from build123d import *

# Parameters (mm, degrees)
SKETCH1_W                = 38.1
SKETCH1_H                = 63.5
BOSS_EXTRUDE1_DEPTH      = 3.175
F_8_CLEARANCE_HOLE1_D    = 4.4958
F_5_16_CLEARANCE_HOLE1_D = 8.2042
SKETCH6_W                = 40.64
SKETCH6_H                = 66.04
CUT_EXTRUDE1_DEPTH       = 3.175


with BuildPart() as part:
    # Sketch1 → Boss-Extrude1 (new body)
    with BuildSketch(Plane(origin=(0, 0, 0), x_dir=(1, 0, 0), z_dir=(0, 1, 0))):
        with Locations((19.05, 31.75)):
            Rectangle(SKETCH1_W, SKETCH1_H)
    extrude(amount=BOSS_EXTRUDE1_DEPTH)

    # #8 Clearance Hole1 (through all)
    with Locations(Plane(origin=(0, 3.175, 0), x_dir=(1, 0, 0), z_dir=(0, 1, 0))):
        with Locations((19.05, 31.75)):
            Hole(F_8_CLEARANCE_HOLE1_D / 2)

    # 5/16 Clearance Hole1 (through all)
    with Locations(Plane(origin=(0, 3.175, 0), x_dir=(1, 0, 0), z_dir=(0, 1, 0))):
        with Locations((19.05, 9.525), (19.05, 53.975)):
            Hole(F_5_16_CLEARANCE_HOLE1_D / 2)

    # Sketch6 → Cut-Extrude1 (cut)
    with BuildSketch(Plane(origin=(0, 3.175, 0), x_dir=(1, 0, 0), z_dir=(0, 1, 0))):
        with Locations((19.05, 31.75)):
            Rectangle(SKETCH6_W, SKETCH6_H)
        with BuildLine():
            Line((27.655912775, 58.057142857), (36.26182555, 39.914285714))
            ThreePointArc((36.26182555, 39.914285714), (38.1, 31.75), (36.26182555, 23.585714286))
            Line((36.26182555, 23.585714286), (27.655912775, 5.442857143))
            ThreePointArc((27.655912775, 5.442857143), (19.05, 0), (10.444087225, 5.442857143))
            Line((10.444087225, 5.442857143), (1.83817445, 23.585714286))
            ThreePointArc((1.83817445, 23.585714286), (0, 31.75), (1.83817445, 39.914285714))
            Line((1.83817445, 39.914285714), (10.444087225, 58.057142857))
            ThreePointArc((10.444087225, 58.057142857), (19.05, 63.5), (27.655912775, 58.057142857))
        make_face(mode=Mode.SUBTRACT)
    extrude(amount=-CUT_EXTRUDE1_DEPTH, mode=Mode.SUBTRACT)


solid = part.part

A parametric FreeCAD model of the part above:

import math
import FreeCAD as App
import Part
import Sketcher
from FreeCAD import Vector
Q = App.Units.Quantity


def add_polygon(sketch, points):
    """Adds a closed chain of lines whose ends are joined by coincident constraints."""
    first, n = sketch.GeometryCount, len(points)
    for a, b in zip(points, points[1:] + points[:1]):
        sketch.addGeometry(Part.LineSegment(App.Vector(*a, 0), App.Vector(*b, 0)), False)
    for i in range(n):
        sketch.addConstraint(Sketcher.Constraint("Coincident", first + i, 2, first + (i + 1) % n, 1))

doc = App.newDocument("Part")
params = doc.addObject("Spreadsheet::Sheet", "Params")
for row, (alias, value) in enumerate([
    ("sketch1_width", "1.5 in"),
    ("sketch1_height", "2.5 in"),
    ("pad1_length", "0.125 in"),
    ("sketch2_diameter", "0.177 in"),
    ("hole_diameter", "0.177 in"),
    ("sketch3_diameter", "0.323 in"),
    ("hole2_diameter", "0.323 in"),
    ("sketch4_radius", "0.75 in"),
    ("sketch4_width", "1.6 in"),
    ("sketch4_height", "2.6 in"),
    ("sketch4_radius2", "0.375 in"),
    ("pocket1_length", "0.125 in"),
], start=1):
    params.set(f"A{row}", alias)
    params.set(f"B{row}", "=" + value)
    params.setAlias(f"B{row}", alias)

body = doc.addObject("PartDesign::Body", "Body")

# Sketch on XZ plane
sketch1 = doc.addObject("Sketcher::SketchObject", "Sketch")
body.addObject(sketch1)
sketch1.AttachmentSupport = (doc.XZ_Plane, [""])
sketch1.MapMode = "FlatFace"
add_polygon(sketch1, [(0, -63.5), (0, 0), (38.1, 0), (38.1, -63.5)])  # lines 0-3
sketch1.addConstraint([
    Sketcher.Constraint("Vertical", 0),
    Sketcher.Constraint("Horizontal", 1),
    Sketcher.Constraint("Vertical", 2),
    Sketcher.Constraint("Horizontal", 3),
    Sketcher.Constraint("Coincident", 0, 2, -1, 1),
    Sketcher.Constraint("DistanceX", 1, 1, 1, 2, Q("1.5 in")),
    Sketcher.Constraint("DistanceY", 0, 1, 0, 2, Q("2.5 in")),
])
sketch1.setExpression("Constraints[9]", "Params.sketch1_width")
sketch1.setExpression("Constraints[10]", "Params.sketch1_height")
pad1 = doc.addObject("PartDesign::Pad", "Pad")
body.addObject(pad1)
pad1.Profile = sketch1
pad1.setExpression("Length", "Params.pad1_length")
pad1.Reversed = True

# Sketch on XZ plane
sketch2 = doc.addObject("Sketcher::SketchObject", "Sketch001")
body.addObject(sketch2)
sketch2.AttachmentSupport = (doc.XZ_Plane, [""])
sketch2.MapMode = "FlatFace"
sketch2.AttachmentOffset = App.Placement(Vector(0, 0, -0.125 * 25.4), App.Rotation())
sketch2.addGeometry(Part.Circle(Vector(19.05, -31.75, 0), Vector(0, 0, 1), 2.2479), False)
sketch2.addConstraint([
    Sketcher.Constraint("Diameter", 0, Q("0.177 in")),
    Sketcher.Constraint("DistanceX", -1, 1, 0, 3, Q("0.75 in")),
    Sketcher.Constraint("DistanceY", 0, 3, -1, 1, Q("1.25 in")),
])
sketch2.setExpression("Constraints[0]", "Params.sketch2_diameter")
doc.recompute()
hole = doc.addObject("PartDesign::Hole", "Hole")
body.addObject(hole)
hole.Profile = sketch2
hole.ThreadType = "None"
hole.setExpression("Diameter", "Params.hole_diameter")
hole.DepthType = "ThroughAll"
hole.Reversed = True

# Sketch on XZ plane
sketch3 = doc.addObject("Sketcher::SketchObject", "Sketch002")
body.addObject(sketch3)
sketch3.AttachmentSupport = (doc.XZ_Plane, [""])
sketch3.MapMode = "FlatFace"
sketch3.AttachmentOffset = App.Placement(Vector(0, 0, -0.125 * 25.4), App.Rotation())
sketch3.addGeometry([
    Part.Circle(Vector(19.05, -9.525, 0), Vector(0, 0, 1), 4.1021),
    Part.Circle(Vector(19.05, -53.975, 0), Vector(0, 0, 1), 4.1021),
], False)
sketch3.addConstraint([
    Sketcher.Constraint("Equal", 0, 1),
    Sketcher.Constraint("Vertical", 0, 3, 1, 3),
    Sketcher.Constraint("Diameter", 0, Q("0.323 in")),
    Sketcher.Constraint("DistanceX", -1, 1, 0, 3, Q("0.75 in")),
    Sketcher.Constraint("DistanceY", 1, 3, 0, 3, Q("1.75 in")),
    Sketcher.Constraint("DistanceY", 0, 3, -1, 1, Q("0.375 in")),
])
sketch3.setExpression("Constraints[2]", "Params.sketch3_diameter")
doc.recompute()
hole2 = doc.addObject("PartDesign::Hole", "Hole001")
body.addObject(hole2)
hole2.Profile = sketch3
hole2.ThreadType = "None"
hole2.setExpression("Diameter", "Params.hole2_diameter")
hole2.DepthType = "ThroughAll"
hole2.Reversed = True

# Sketch on XZ plane
sketch4 = doc.addObject("Sketcher::SketchObject", "Sketch003")
body.addObject(sketch4)
sketch4.AttachmentSupport = (doc.XZ_Plane, [""])
sketch4.MapMode = "FlatFace"
sketch4.AttachmentOffset = App.Placement(Vector(0, 0, -0.125 * 25.4), App.Rotation())
add_polygon(sketch4, [(-1.27, -64.77), (-1.27, 1.27), (39.37, 1.27), (39.37, -64.77)])  # lines 0-3
sketch4.addGeometry(Part.ArcOfCircle(Part.Circle(Vector(19.05, -53.975, 0), Vector(0, 0, 1), 9.525), math.radians(-154.623066), math.radians(-25.376934)), False)  # 4
sketch4.addGeometry(Part.LineSegment(Vector(27.655913, -58.057143, 0), Vector(36.261826, -39.914286, 0)), False)  # 5
sketch4.addGeometry(Part.ArcOfCircle(Part.Circle(Vector(19.05, -31.75, 0), Vector(0, 0, 1), 19.05), math.radians(-25.376934), math.radians(25.376934)), False)  # 6
sketch4.addGeometry(Part.LineSegment(Vector(36.261826, -23.585714, 0), Vector(27.655913, -5.442857, 0)), False)  # 7
sketch4.addGeometry(Part.ArcOfCircle(Part.Circle(Vector(19.05, -9.525, 0), Vector(0, 0, 1), 9.525), math.radians(25.376934), math.radians(154.623066)), False)  # 8
sketch4.addGeometry(Part.LineSegment(Vector(10.444087, -5.442857, 0), Vector(1.838174, -23.585714, 0)), False)  # 9
sketch4.addGeometry(Part.ArcOfCircle(Part.Circle(Vector(19.05, -31.75, 0), Vector(0, 0, 1), 19.05), math.radians(154.623066), math.radians(205.376934)), False)  # 10
sketch4.addGeometry(Part.LineSegment(Vector(1.838174, -39.914286, 0), Vector(10.444087, -58.057143, 0)), False)  # 11
sketch4.addConstraint([
    Sketcher.Constraint("Tangent", 4, 2, 5, 1),
    Sketcher.Constraint("Tangent", 5, 2, 6, 1),
    Sketcher.Constraint("Tangent", 6, 2, 7, 1),
    Sketcher.Constraint("Tangent", 7, 2, 8, 1),
    Sketcher.Constraint("Tangent", 8, 2, 9, 1),
    Sketcher.Constraint("Tangent", 9, 2, 10, 1),
    Sketcher.Constraint("Tangent", 10, 2, 11, 1),
    Sketcher.Constraint("Tangent", 11, 2, 4, 1),
    Sketcher.Constraint("Vertical", 0),
    Sketcher.Constraint("Horizontal", 1),
    Sketcher.Constraint("Vertical", 2),
    Sketcher.Constraint("Horizontal", 3),
    Sketcher.Constraint("Coincident", 10, 3, 6, 3),
    Sketcher.Constraint("Equal", 4, 8),
    Sketcher.Constraint("Equal", 6, 10),
    Sketcher.Constraint("Parallel", 5, 9),
    Sketcher.Constraint("Parallel", 7, 11),
    Sketcher.Constraint("Horizontal", 7, 2, 8, 2),
    Sketcher.Constraint("Radius", 6, Q("0.75 in")),
    Sketcher.Constraint("DistanceX", 1, 1, 1, 2, Q("1.6 in")),
    Sketcher.Constraint("DistanceY", 0, 1, 0, 2, Q("2.6 in")),
    Sketcher.Constraint("Radius", 4, Q("0.375 in")),
    Sketcher.Constraint("DistanceX", 0, 2, 8, 3, Q("0.8 in")),
    Sketcher.Constraint("DistanceY", 10, 3, 0, 2, Q("1.3 in")),
    Sketcher.Constraint("DistanceX", -1, 1, 4, 3, Q("0.75 in")),
    Sketcher.Constraint("DistanceY", 6, 3, -1, 1, Q("1.25 in")),
    Sketcher.Constraint("DistanceY", 4, 3, 8, 3, Q("1.75 in")),
])
sketch4.setExpression("Constraints[22]", "Params.sketch4_radius")
sketch4.setExpression("Constraints[23]", "Params.sketch4_width")
sketch4.setExpression("Constraints[24]", "Params.sketch4_height")
sketch4.setExpression("Constraints[25]", "Params.sketch4_radius2")
pocket1 = doc.addObject("PartDesign::Pocket", "Pocket")
body.addObject(pocket1)
pocket1.Profile = sketch4
pocket1.setExpression("Length", "Params.pocket1_length")
pocket1.Reversed = True

doc.recompute()
